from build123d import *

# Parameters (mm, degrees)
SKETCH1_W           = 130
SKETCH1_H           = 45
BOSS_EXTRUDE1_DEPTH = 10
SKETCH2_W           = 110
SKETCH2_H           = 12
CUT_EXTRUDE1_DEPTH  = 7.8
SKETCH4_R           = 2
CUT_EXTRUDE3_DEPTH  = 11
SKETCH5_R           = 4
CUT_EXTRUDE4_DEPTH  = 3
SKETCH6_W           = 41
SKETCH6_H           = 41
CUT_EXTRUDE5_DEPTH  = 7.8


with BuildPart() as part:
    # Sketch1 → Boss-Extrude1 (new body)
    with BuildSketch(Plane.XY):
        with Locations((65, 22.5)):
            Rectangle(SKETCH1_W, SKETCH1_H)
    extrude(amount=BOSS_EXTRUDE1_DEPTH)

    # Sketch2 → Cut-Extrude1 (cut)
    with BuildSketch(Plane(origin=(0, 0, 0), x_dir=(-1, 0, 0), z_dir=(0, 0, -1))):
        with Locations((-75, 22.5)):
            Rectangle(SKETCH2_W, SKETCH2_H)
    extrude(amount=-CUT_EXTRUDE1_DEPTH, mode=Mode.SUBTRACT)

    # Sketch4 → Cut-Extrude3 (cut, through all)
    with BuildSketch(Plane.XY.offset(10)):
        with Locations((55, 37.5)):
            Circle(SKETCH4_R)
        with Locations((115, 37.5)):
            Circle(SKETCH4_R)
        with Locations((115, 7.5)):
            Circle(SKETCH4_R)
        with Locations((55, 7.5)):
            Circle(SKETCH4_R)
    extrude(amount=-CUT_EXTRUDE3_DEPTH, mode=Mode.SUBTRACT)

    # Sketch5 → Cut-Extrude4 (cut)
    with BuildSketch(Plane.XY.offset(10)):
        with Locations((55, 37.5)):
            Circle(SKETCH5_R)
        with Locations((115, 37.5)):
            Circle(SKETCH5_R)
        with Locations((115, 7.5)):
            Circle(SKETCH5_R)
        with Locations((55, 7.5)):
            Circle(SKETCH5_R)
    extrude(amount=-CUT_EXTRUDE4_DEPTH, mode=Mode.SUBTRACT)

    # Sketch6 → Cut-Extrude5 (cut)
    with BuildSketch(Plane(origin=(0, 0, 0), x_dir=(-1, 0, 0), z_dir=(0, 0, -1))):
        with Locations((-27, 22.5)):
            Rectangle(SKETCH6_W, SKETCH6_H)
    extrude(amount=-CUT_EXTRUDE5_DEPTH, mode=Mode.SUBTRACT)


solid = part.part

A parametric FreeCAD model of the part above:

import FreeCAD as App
import Part
import Sketcher
from FreeCAD import Vector


def add_polygon(sketch, points):
    """Adds a closed chain of lines whose ends are joined by coincident constraints."""
    first, n = sketch.GeometryCount, len(points)
    for a, b in zip(points, points[1:] + points[:1]):
        sketch.addGeometry(Part.LineSegment(App.Vector(*a, 0), App.Vector(*b, 0)), False)
    for i in range(n):
        sketch.addConstraint(Sketcher.Constraint("Coincident", first + i, 2, first + (i + 1) % n, 1))

doc = App.newDocument("Part")
body = doc.addObject("PartDesign::Body", "Body")

# Sketch on XY plane
sketch1 = doc.addObject("Sketcher::SketchObject", "Sketch")
body.addObject(sketch1)
sketch1.AttachmentSupport = (doc.XY_Plane, [""])
sketch1.MapMode = "FlatFace"
add_polygon(sketch1, [(0, 45), (0, 0), (130, 0), (130, 45)])  # lines 0-3
sketch1.addConstraint(Sketcher.Constraint("Vertical", 0))
sketch1.addConstraint(Sketcher.Constraint("Horizontal", 1))
sketch1.addConstraint(Sketcher.Constraint("Vertical", 2))
sketch1.addConstraint(Sketcher.Constraint("Horizontal", 3))
sketch1.addConstraint(Sketcher.Constraint("Coincident", 0, 2, -1, 1))
sketch1.addConstraint(Sketcher.Constraint("DistanceX", 1, 1, 1, 2, 130.0))
sketch1.addConstraint(Sketcher.Constraint("DistanceY", 0, 2, 0, 1, 45.0))
pad1 = doc.addObject("PartDesign::Pad", "Pad")
body.addObject(pad1)
pad1.Profile = sketch1
pad1.Length = 10

# Sketch on XY plane
sketch2 = doc.addObject("Sketcher::SketchObject", "Sketch001")
body.addObject(sketch2)
sketch2.AttachmentSupport = (doc.XY_Plane, [""])
sketch2.MapMode = "FlatFace"
add_polygon(sketch2, [(130, 28), (130, 16), (20, 16), (20, 28)])  # lines 0-3
sketch2.addConstraint(Sketcher.Constraint("Vertical", 0))
sketch2.addConstraint(Sketcher.Constraint("Horizontal", 1))
sketch2.addConstraint(Sketcher.Constraint("Vertical", 2))
sketch2.addConstraint(Sketcher.Constraint("Horizontal", 3))
sketch2.addConstraint(Sketcher.Constraint("DistanceX", 1, 2, 1, 1, 110.0))
sketch2.addConstraint(Sketcher.Constraint("DistanceY", 0, 2, 0, 1, 12.0))
sketch2.addConstraint(Sketcher.Constraint("DistanceX", -1, 1, 0, 2, 130.0))
sketch2.addConstraint(Sketcher.Constraint("DistanceY", -1, 1, 0, 2, 16.5))
pocket1 = doc.addObject("PartDesign::Pocket", "Pocket")
body.addObject(pocket1)
pocket1.Profile = sketch2
pocket1.Length = 7.8
pocket1.Reversed = True

# Sketch on XY plane
sketch3 = doc.addObject("Sketcher::SketchObject", "Sketch002")
body.addObject(sketch3)
sketch3.AttachmentSupport = (doc.XY_Plane, [""])
sketch3.MapMode = "FlatFace"
sketch3.AttachmentOffset = App.Placement(Vector(0, 0, 10), App.Rotation())
sketch3.addGeometry(Part.Circle(Vector(55, 37.5, 0), Vector(0, 0, 1), 2), False)
sketch3.addGeometry(Part.Circle(Vector(115, 37.5, 0), Vector(0, 0, 1), 2), False)
sketch3.addGeometry(Part.Circle(Vector(115, 7.5, 0), Vector(0, 0, 1), 2), False)
sketch3.addGeometry(Part.Circle(Vector(55, 7.5, 0), Vector(0, 0, 1), 2), False)
sketch3.addConstraint(Sketcher.Constraint("Equal", 0, 1))
sketch3.addConstraint(Sketcher.Constraint("Equal", 1, 2))
sketch3.addConstraint(Sketcher.Constraint("Equal", 2, 3))
sketch3.addConstraint(Sketcher.Constraint("Horizontal", 0, 3, 1, 3))
sketch3.addConstraint(Sketcher.Constraint("Horizontal", 2, 3, 3, 3))
sketch3.addConstraint(Sketcher.Constraint("Vertical", 1, 3, 2, 3))
sketch3.addConstraint(Sketcher.Constraint("Vertical", 0, 3, 3, 3))
sketch3.addConstraint(Sketcher.Constraint("Diameter", 0, 4.0))
sketch3.addConstraint(Sketcher.Constraint("DistanceX", -1, 1, 0, 3, 55.0))
sketch3.addConstraint(Sketcher.Constraint("DistanceX", -1, 1, 1, 3, 115.0))
sketch3.addConstraint(Sketcher.Constraint("DistanceY", 2, 3, 1, 3, 30.0))
sketch3.addConstraint(Sketcher.Constraint("DistanceY", -1, 1, 0, 3, 37.5))
pocket2 = doc.addObject("PartDesign::Pocket", "Pocket001")
body.addObject(pocket2)
pocket2.Profile = sketch3
pocket2.Type = "ThroughAll"

# Sketch on XY plane
sketch4 = doc.addObject("Sketcher::SketchObject", "Sketch003")
body.addObject(sketch4)
sketch4.AttachmentSupport = (doc.XY_Plane, [""])
sketch4.MapMode = "FlatFace"
sketch4.AttachmentOffset = App.Placement(Vector(0, 0, 10), App.Rotation())
sketch4.addGeometry(Part.Circle(Vector(55, 37.5, 0), Vector(0, 0, 1), 4), False)
sketch4.addGeometry(Part.Circle(Vector(115, 37.5, 0), Vector(0, 0, 1), 4), False)
sketch4.addGeometry(Part.Circle(Vector(115, 7.5, 0), Vector(0, 0, 1), 4), False)
sketch4.addGeometry(Part.Circle(Vector(55, 7.5, 0), Vector(0, 0, 1), 4), False)
sketch4.addConstraint(Sketcher.Constraint("Equal", 0, 1))
sketch4.addConstraint(Sketcher.Constraint("Equal", 1, 2))
sketch4.addConstraint(Sketcher.Constraint("Equal", 2, 3))
sketch4.addConstraint(Sketcher.Constraint("Horizontal", 0, 3, 1, 3))
sketch4.addConstraint(Sketcher.Constraint("Horizontal", 2, 3, 3, 3))
sketch4.addConstraint(Sketcher.Constraint("Vertical", 1, 3, 2, 3))
sketch4.addConstraint(Sketcher.Constraint("Vertical", 0, 3, 3, 3))
sketch4.addConstraint(Sketcher.Constraint("Diameter", 0, 8.0))
sketch4.addConstraint(Sketcher.Constraint("DistanceX", -1, 1, 0, 3, 55.0))
sketch4.addConstraint(Sketcher.Constraint("DistanceX", -1, 1, 1, 3, 115.0))
sketch4.addConstraint(Sketcher.Constraint("DistanceY", 2, 3, 1, 3, 30.0))
sketch4.addConstraint(Sketcher.Constraint("DistanceY", -1, 1, 0, 3, 37.5))
pocket3 = doc.addObject("PartDesign::Pocket", "Pocket002")
body.addObject(pocket3)
pocket3.Profile = sketch4
pocket3.Length = 3

# Sketch on XY plane
sketch5 = doc.addObject("Sketcher::SketchObject", "Sketch004")
body.addObject(sketch5)
sketch5.AttachmentSupport = (doc.XY_Plane, [""])
sketch5.MapMode = "FlatFace"
add_polygon(sketch5, [(48, 43), (48, 2), (6, 2), (6, 43)])  # lines 0-3
sketch5.addConstraint(Sketcher.Constraint("Vertical", 0))
sketch5.addConstraint(Sketcher.Constraint("Horizontal", 1))
sketch5.addConstraint(Sketcher.Constraint("Vertical", 2))
sketch5.addConstraint(Sketcher.Constraint("Horizontal", 3))
sketch5.addConstraint(Sketcher.Constraint("Equal", 3, 0))
sketch5.addConstraint(Sketcher.Constraint("DistanceX", 1, 2, 1, 1, 41.0))
sketch5.addConstraint(Sketcher.Constraint("DistanceY", -1, 1, 0, 2, 2.0))
sketch5.addConstraint(Sketcher.Constraint("DistanceX", -1, 1, 0, 2, 47.5))
pocket4 = doc.addObject("PartDesign::Pocket", "Pocket003")
body.addObject(pocket4)
pocket4.Profile = sketch5
pocket4.Length = 7.8
pocket4.Reversed = True

doc.recompute()
